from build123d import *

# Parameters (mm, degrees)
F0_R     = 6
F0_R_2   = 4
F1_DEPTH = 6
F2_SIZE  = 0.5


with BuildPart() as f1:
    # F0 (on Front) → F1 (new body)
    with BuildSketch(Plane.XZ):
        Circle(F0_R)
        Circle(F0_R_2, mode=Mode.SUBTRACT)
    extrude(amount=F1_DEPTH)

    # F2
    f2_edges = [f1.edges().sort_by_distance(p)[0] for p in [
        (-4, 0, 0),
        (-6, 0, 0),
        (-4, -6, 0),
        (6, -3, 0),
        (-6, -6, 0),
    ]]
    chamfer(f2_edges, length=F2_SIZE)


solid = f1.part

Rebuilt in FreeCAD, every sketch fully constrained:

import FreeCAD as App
import Part
import Sketcher
from FreeCAD import Vector
Q = App.Units.Quantity

doc = App.newDocument("Part")
body = doc.addObject("PartDesign::Body", "Body")

sketch1 = body.newObject("Sketcher::SketchObject", "Sketch")
sketch1.AttachmentSupport = (doc.getObject("XZ_Plane"), [""])
sketch1.MapMode = "FlatFace"
sketch1.addGeometry([
    Part.Circle(Vector(0, 0, 0), Vector(0, 0, 1), 6),
    Part.Circle(Vector(0, 0, 0), Vector(0, 0, 1), 4),
], False)
sketch1.addConstraint([
    Sketcher.Constraint("Coincident", 0, 3, -1, 1),
    Sketcher.Constraint("Coincident", 1, 3, -1, 1),
    Sketcher.Constraint("Diameter", 0, Q("12 mm")),
    Sketcher.Constraint("Diameter", 1, Q("8 mm")),
])
pad1 = body.newObject("PartDesign::Pad", "Pad")
pad1.Profile = sketch1
pad1.Length = 6
doc.recompute()

chamfer = body.newObject("PartDesign::Chamfer", "Chamfer")
chamfer.Base = (pad1, ["Edge1"])
chamfer.UseAllEdges = True
chamfer.Size = 0.5

doc.recompute()
